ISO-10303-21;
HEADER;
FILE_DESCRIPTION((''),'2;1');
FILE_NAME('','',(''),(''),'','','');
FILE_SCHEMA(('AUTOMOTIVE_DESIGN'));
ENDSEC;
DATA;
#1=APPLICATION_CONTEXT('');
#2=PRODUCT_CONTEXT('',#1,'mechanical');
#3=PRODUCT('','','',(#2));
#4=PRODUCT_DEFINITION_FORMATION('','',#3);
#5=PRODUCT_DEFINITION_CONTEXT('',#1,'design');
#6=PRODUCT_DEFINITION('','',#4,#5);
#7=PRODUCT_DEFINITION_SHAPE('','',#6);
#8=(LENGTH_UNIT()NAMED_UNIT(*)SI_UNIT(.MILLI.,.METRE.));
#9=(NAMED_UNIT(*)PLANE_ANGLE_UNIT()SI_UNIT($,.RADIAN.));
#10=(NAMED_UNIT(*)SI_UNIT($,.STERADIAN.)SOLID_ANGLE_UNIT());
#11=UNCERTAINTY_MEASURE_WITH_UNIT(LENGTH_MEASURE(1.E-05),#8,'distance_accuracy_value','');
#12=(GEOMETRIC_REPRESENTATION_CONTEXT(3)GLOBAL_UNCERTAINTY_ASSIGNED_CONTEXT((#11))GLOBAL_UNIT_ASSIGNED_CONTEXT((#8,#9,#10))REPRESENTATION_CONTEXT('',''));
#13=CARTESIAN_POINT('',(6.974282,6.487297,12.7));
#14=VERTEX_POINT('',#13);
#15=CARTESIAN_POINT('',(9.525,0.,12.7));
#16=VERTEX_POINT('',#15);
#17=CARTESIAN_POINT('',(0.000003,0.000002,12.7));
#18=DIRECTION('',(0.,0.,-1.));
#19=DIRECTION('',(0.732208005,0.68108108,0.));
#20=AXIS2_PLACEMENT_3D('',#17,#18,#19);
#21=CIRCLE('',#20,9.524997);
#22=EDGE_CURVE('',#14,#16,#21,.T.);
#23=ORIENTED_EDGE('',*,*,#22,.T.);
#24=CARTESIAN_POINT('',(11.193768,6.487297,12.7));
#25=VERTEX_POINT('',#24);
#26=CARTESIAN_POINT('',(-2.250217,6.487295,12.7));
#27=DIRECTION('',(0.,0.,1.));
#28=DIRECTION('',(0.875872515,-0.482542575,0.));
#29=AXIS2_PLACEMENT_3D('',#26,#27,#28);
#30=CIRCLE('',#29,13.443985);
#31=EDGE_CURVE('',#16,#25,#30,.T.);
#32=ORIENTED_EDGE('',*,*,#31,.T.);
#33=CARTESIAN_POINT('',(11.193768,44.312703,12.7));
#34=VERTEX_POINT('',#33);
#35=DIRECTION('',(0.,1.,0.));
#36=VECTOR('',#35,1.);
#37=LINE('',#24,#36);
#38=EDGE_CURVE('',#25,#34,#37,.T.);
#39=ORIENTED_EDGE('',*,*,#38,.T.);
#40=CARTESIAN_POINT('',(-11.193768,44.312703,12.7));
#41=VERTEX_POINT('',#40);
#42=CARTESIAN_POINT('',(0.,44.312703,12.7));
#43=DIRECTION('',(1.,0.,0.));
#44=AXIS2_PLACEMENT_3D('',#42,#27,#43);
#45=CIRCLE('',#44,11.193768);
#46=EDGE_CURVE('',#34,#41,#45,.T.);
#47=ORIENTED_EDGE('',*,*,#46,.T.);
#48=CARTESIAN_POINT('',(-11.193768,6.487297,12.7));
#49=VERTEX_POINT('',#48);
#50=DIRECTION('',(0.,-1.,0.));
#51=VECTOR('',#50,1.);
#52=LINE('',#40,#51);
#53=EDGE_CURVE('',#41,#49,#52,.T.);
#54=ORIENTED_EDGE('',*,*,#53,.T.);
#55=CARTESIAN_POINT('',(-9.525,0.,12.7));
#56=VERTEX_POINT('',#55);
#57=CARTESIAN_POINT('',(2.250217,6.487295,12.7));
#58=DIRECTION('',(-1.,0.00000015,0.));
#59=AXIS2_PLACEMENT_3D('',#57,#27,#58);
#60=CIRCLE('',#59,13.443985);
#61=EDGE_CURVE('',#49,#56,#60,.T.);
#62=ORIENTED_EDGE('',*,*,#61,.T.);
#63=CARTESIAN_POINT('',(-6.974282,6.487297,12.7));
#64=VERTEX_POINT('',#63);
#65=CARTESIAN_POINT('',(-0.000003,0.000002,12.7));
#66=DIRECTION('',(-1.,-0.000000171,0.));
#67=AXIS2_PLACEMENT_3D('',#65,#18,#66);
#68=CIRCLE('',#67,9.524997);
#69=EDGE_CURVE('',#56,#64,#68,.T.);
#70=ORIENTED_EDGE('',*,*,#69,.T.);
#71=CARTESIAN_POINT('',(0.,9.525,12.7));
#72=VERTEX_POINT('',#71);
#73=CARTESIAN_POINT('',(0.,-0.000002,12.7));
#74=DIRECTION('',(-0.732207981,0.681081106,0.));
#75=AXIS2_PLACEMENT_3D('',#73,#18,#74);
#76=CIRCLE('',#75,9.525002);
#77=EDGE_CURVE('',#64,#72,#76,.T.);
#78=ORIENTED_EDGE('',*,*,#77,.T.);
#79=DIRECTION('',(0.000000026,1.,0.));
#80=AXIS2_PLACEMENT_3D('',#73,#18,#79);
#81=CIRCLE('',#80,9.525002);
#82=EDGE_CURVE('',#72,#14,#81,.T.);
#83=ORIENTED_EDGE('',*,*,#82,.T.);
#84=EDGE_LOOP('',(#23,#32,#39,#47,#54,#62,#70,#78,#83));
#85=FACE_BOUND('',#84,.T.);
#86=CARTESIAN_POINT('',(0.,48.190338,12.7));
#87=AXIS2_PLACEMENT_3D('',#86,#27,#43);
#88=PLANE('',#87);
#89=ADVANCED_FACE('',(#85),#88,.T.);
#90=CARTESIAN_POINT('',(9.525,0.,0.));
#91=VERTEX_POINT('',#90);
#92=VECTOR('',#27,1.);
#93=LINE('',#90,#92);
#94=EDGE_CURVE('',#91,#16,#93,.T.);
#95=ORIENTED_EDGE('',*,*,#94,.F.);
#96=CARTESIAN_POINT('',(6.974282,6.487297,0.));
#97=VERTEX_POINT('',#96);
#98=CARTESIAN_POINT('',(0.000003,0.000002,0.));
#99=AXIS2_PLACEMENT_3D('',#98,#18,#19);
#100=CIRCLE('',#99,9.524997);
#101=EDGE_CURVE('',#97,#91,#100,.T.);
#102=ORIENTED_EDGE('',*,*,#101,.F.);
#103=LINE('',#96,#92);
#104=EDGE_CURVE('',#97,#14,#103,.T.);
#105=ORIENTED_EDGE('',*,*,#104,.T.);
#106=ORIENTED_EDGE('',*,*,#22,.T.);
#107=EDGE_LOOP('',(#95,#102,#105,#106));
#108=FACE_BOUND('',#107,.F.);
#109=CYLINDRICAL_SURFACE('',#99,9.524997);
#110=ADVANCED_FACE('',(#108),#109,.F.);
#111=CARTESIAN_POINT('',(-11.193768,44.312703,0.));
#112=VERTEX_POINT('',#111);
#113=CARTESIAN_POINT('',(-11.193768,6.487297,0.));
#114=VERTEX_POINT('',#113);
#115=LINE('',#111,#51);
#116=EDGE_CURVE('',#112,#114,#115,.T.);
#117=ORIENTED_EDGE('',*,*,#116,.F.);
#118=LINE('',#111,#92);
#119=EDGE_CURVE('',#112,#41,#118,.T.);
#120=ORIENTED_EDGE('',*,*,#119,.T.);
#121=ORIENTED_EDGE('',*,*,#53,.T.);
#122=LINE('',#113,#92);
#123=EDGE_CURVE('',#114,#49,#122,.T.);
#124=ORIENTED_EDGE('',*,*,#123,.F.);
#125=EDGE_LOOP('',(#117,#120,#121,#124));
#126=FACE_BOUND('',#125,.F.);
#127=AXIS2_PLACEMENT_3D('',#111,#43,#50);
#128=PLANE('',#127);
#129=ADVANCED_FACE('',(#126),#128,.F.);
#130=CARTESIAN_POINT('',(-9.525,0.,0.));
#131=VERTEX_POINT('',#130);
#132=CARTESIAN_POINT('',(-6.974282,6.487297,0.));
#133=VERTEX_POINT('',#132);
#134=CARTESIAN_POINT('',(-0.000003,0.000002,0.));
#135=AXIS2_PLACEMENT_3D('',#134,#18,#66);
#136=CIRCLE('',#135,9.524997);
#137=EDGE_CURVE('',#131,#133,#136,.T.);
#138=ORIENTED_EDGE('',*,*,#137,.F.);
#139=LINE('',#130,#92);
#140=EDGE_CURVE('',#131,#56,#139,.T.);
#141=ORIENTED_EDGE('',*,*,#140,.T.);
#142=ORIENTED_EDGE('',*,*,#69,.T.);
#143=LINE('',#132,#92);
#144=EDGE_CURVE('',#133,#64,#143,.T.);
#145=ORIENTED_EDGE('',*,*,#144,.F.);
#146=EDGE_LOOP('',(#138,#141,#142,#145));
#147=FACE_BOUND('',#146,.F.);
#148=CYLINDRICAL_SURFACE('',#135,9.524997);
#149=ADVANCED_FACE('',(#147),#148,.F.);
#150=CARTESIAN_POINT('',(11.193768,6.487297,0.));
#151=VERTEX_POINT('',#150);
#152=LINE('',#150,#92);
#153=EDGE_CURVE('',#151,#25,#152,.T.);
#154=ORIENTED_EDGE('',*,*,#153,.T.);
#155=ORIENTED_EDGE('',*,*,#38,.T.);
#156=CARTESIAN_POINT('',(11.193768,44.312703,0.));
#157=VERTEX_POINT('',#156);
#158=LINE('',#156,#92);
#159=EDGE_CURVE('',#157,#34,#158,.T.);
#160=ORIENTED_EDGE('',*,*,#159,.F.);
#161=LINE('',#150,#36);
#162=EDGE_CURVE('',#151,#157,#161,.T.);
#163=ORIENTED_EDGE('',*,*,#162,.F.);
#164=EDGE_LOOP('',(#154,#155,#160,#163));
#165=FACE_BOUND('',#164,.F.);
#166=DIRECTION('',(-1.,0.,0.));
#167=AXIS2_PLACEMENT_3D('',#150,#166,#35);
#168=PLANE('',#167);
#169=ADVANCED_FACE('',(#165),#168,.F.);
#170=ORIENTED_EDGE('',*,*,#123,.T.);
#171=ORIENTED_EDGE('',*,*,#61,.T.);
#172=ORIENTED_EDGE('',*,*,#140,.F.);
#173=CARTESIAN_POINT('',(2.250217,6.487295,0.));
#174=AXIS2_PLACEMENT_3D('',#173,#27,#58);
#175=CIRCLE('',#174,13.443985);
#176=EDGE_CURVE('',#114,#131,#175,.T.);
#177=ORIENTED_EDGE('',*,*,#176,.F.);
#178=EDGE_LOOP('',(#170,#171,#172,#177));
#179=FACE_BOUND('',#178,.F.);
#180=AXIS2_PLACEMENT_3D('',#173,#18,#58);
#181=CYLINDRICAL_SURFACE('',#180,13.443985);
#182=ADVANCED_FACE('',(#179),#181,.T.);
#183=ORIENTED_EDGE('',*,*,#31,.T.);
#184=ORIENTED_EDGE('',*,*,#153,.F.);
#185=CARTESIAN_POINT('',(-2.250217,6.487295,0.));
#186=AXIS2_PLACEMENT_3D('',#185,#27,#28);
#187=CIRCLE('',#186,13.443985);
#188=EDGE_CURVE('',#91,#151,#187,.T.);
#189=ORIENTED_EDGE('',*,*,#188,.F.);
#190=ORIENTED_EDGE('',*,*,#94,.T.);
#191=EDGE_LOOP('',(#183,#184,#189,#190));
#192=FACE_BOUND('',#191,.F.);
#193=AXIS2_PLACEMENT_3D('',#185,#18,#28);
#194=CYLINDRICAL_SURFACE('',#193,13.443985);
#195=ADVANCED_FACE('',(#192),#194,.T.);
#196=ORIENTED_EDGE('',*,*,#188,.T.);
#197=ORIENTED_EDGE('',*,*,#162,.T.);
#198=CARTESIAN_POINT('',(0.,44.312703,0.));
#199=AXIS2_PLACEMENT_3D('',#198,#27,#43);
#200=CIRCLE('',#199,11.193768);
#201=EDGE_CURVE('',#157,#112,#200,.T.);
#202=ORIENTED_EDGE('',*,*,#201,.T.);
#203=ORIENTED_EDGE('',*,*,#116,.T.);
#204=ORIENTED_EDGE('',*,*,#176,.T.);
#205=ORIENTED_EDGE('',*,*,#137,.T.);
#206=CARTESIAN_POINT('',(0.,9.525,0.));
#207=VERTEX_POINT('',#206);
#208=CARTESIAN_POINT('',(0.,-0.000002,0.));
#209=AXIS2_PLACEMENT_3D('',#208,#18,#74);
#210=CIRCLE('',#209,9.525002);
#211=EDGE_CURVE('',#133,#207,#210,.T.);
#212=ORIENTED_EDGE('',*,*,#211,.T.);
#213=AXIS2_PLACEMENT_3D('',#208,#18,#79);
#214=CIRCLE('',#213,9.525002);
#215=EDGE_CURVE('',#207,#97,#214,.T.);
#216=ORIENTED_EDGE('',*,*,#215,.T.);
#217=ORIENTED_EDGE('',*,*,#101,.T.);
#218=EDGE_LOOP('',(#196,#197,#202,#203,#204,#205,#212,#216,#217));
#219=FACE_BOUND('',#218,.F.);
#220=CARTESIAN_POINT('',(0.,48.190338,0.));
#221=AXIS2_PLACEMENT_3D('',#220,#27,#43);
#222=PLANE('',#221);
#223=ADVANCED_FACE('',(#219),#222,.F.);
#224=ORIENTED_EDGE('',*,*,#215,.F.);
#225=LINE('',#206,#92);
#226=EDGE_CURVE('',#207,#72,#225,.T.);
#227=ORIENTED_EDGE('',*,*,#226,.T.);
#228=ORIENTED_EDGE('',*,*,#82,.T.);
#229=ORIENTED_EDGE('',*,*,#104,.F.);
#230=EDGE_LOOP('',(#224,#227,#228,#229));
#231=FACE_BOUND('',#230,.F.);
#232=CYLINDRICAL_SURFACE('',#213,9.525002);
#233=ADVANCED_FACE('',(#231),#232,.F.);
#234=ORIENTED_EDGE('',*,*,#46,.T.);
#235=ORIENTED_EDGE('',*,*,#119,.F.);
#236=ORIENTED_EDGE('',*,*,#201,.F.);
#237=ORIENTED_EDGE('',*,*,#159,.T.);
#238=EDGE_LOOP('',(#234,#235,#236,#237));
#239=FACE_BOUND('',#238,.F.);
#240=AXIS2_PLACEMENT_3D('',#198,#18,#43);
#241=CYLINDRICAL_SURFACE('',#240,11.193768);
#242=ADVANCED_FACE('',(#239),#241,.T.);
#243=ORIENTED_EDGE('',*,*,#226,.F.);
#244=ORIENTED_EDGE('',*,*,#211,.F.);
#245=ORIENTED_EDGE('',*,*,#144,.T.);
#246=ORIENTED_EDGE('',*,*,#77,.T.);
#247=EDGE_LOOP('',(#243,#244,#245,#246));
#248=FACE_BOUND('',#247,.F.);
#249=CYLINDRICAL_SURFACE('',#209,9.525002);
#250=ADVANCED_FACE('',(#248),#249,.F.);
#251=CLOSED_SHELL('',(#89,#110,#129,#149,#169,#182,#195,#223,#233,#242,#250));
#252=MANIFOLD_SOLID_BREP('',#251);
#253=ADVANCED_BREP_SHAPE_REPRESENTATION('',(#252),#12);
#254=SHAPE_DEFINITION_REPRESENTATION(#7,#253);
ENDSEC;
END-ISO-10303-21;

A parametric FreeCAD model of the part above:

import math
import FreeCAD as App
import Part
import Sketcher
from FreeCAD import Vector
Q = App.Units.Quantity

doc = App.newDocument("Part")
body = doc.addObject("PartDesign::Body", "Body")

sketch1 = body.newObject("Sketcher::SketchObject", "Sketch")
sketch1.AttachmentSupport = (doc.getObject("XY_Plane"), [""])
sketch1.MapMode = "FlatFace"
sketch1.addGeometry(Part.ArcOfCircle(Part.Circle(Vector(0, 44.312703, 0), Vector(0, 0, 1), 11.193768), math.radians(0), math.radians(180)), False)
sketch1.addGeometry(Part.LineSegment(Vector(-11.193768, 44.312703, 0), Vector(-11.193768, 6.487297, 0)), False)
sketch1.addGeometry(Part.ArcOfCircle(Part.Circle(Vector(2.250217, 6.487295, 0), Vector(0, 0, 1), 13.443985), math.radians(179.999991), math.radians(208.851594)), False)
sketch1.addGeometry(Part.ArcOfCircle(Part.Circle(Vector(-0.000003, 0.000002, 0), Vector(0, 0, 1), 9.524997), math.radians(137.07182), math.radians(180.00001)), False)
sketch1.addGeometry(Part.ArcOfCircle(Part.Circle(Vector(0, -0.000002, 0), Vector(0, 0, 1), 9.525002), math.radians(90.000001), math.radians(137.071818)), False)
sketch1.addGeometry(Part.ArcOfCircle(Part.Circle(Vector(0, -0.000002, 0), Vector(0, 0, 1), 9.525002), math.radians(42.928182), math.radians(89.999999)), False)
sketch1.addGeometry(Part.ArcOfCircle(Part.Circle(Vector(0.000003, 0.000002, 0), Vector(0, 0, 1), 9.524997), math.radians(-0.00001), math.radians(42.92818)), False)
sketch1.addGeometry(Part.ArcOfCircle(Part.Circle(Vector(-2.250217, 6.487295, 0), Vector(0, 0, 1), 13.443985), math.radians(-28.851594), math.radians(0.000009)), False)
sketch1.addGeometry(Part.LineSegment(Vector(11.193768, 6.487297, 0), Vector(11.193768, 44.312703, 0)), False)
sketch1.addConstraint(Sketcher.Constraint("Tangent", 0, 2, 1, 1))
sketch1.addConstraint(Sketcher.Constraint("Tangent", 1, 2, 2, 1))
sketch1.addConstraint(Sketcher.Constraint("Coincident", 2, 2, 3, 2))
sketch1.addConstraint(Sketcher.Constraint("Tangent", 3, 1, 4, 2))
sketch1.addConstraint(Sketcher.Constraint("Tangent", 4, 1, 5, 2))
sketch1.addConstraint(Sketcher.Constraint("Tangent", 5, 1, 6, 2))
sketch1.addConstraint(Sketcher.Constraint("Coincident", 6, 1, 7, 1))
sketch1.addConstraint(Sketcher.Constraint("Tangent", 7, 2, 8, 1))
sketch1.addConstraint(Sketcher.Constraint("Tangent", 8, 2, 0, 1))
sketch1.addConstraint(Sketcher.Constraint("Vertical", 1))
sketch1.addConstraint(Sketcher.Constraint("Vertical", 8))
sketch1.addConstraint(Sketcher.Constraint("Coincident", 3, 3, -1, 1))
sketch1.addConstraint(Sketcher.Constraint("Coincident", 5, 3, -1, 1))
sketch1.addConstraint(Sketcher.Constraint("Equal", 3, 6))
sketch1.addConstraint(Sketcher.Constraint("Equal", 2, 7))
sketch1.addConstraint(Sketcher.Constraint("Symmetric", 2, 3, 7, 3, -2))
sketch1.addConstraint(Sketcher.Constraint("PointOnObject", 2, 2, -1))
sketch1.addConstraint(Sketcher.Constraint("PointOnObject", 4, 1, -2))
sketch1.addConstraint(Sketcher.Constraint("Horizontal", 1, 2, 3, 1))
sketch1.addConstraint(Sketcher.Constraint("Horizontal", 3, 1, 5, 1))
sketch1.addConstraint(Sketcher.Constraint("Radius", 3, Q("0.3749999 in")))
sketch1.addConstraint(Sketcher.Constraint("Radius", 0, 11.193768))
sketch1.addConstraint(Sketcher.Constraint("Radius", 2, 13.443985))
sketch1.addConstraint(Sketcher.Constraint("DistanceY", 3, 3, 0, 3, 44.312701))
pad1 = body.newObject("PartDesign::Pad", "Pad")
pad1.Profile = sketch1
pad1.Length = Q("0.5 in")

doc.recompute()
